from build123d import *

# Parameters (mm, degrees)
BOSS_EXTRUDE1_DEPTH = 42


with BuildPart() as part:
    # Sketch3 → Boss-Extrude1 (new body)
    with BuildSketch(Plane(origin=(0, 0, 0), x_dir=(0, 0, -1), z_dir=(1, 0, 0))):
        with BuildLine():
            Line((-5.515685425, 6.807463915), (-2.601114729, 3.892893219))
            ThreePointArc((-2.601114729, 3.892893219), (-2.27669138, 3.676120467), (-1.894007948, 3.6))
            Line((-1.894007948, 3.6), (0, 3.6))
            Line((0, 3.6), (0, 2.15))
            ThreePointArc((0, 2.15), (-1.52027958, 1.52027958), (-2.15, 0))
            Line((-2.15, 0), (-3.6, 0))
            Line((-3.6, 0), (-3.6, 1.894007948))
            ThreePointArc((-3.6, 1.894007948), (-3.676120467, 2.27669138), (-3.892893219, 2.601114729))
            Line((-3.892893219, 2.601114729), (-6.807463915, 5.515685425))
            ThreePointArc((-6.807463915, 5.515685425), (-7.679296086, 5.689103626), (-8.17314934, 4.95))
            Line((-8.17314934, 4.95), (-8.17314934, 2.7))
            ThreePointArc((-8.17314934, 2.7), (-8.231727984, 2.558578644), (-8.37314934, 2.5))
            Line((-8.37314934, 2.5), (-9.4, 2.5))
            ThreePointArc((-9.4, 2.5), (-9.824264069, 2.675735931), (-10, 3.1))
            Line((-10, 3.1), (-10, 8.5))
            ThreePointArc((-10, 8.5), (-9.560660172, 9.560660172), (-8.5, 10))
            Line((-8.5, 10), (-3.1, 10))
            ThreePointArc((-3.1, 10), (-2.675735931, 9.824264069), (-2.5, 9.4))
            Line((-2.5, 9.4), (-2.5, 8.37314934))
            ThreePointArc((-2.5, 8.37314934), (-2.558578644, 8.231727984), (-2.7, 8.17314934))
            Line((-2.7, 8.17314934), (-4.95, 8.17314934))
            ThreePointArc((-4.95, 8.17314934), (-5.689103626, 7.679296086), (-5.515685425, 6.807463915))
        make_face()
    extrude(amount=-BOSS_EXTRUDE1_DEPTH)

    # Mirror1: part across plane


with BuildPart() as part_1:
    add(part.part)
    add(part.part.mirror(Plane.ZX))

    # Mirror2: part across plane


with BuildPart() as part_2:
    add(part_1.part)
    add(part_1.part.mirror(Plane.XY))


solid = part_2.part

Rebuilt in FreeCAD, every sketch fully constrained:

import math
import FreeCAD as App
import Part
import Sketcher

V = App.Vector

doc = App.newDocument("Part")
body = doc.addObject("PartDesign::Body", "Body")

# Sketch on YZ plane
sketch1 = body.newObject("Sketcher::SketchObject", "Sketch")
sketch1.AttachmentSupport = (doc.getObject("YZ_Plane"), [""])
sketch1.MapMode = "FlatFace"
sketch1.addGeometry([
    Part.LineSegment(V(3.89, 2.6, 0), V(6.81, 5.52, 0)),  # 0
    Part.ArcOfCircle(Part.Circle(V(7.37, 4.95, 0), V(0, 0, 1), 0.8), math.radians(0), math.radians(135)),  # 1
    Part.LineSegment(V(8.17, 4.95, 0), V(8.17, 2.7, 0)),  # 2
    Part.ArcOfCircle(Part.Circle(V(8.37, 2.7, 0), V(0, 0, 1), 0.2), math.radians(-180), math.radians(-90)),  # 3
    Part.LineSegment(V(8.37, 2.5, 0), V(9.4, 2.5, 0)),  # 4
    Part.ArcOfCircle(Part.Circle(V(9.4, 3.1, 0), V(0, 0, 1), 0.6), math.radians(-90), math.radians(0)),  # 5
    Part.LineSegment(V(10, 3.1, 0), V(10, 8.5, 0)),  # 6
    Part.ArcOfCircle(Part.Circle(V(8.5, 8.5, 0), V(0, 0, 1), 1.5), math.radians(0), math.radians(90)),  # 7
    Part.LineSegment(V(8.5, 10, 0), V(3.1, 10, 0)),  # 8
    Part.ArcOfCircle(Part.Circle(V(3.1, 9.4, 0), V(0, 0, 1), 0.6), math.radians(90), math.radians(180)),  # 9
    Part.LineSegment(V(2.5, 9.4, 0), V(2.5, 8.37, 0)),  # 10
    Part.ArcOfCircle(Part.Circle(V(2.7, 8.37, 0), V(0, 0, 1), 0.2), math.radians(-180), math.radians(-90)),  # 11
    Part.LineSegment(V(2.7, 8.17, 0), V(4.95, 8.17, 0)),  # 12
    Part.ArcOfCircle(Part.Circle(V(4.95, 7.37, 0), V(0, 0, 1), 0.8), math.radians(-45), math.radians(90)),  # 13
    Part.LineSegment(V(5.52, 6.81, 0), V(2.6, 3.89, 0)),  # 14
    Part.ArcOfCircle(Part.Circle(V(1.89, 4.6, 0), V(0, 0, 1), 1), math.radians(-90), math.radians(-45)),  # 15
    Part.LineSegment(V(1.89, 3.6, 0), V(0, 3.6, 0)),  # 16
    Part.LineSegment(V(0, 3.6, 0), V(0, 2.15, 0)),  # 17
    Part.ArcOfCircle(Part.Circle(V(0, 0, 0), V(0, 0, 1), 2.15), math.radians(0), math.radians(90)),  # 18
    Part.LineSegment(V(2.15, 0, 0), V(3.6, 0, 0)),  # 19
    Part.LineSegment(V(3.6, 0, 0), V(3.6, 1.89, 0)),  # 20
    Part.ArcOfCircle(Part.Circle(V(4.6, 1.89, 0), V(0, 0, 1), 1), math.radians(135), math.radians(180)),  # 21
], False)
sketch1.addConstraint([
    Sketcher.Constraint("Tangent", 0, 2, 1, 2),
    Sketcher.Constraint("Tangent", 1, 1, 2, 1),
    Sketcher.Constraint("Tangent", 2, 2, 3, 1),
    Sketcher.Constraint("Tangent", 3, 2, 4, 1),
    Sketcher.Constraint("Tangent", 4, 2, 5, 1),
    Sketcher.Constraint("Tangent", 5, 2, 6, 1),
    Sketcher.Constraint("Tangent", 6, 2, 7, 1),
    Sketcher.Constraint("Tangent", 7, 2, 8, 1),
    Sketcher.Constraint("Tangent", 8, 2, 9, 1),
    Sketcher.Constraint("Tangent", 9, 2, 10, 1),
    Sketcher.Constraint("Tangent", 10, 2, 11, 1),
    Sketcher.Constraint("Tangent", 11, 2, 12, 1),
    Sketcher.Constraint("Tangent", 12, 2, 13, 2),
    Sketcher.Constraint("Tangent", 13, 1, 14, 1),
    Sketcher.Constraint("Tangent", 14, 2, 15, 2),
    Sketcher.Constraint("Tangent", 15, 1, 16, 1),
    Sketcher.Constraint("Coincident", 16, 2, 17, 1),
    Sketcher.Constraint("Coincident", 17, 2, 18, 2),
    Sketcher.Constraint("Coincident", 18, 1, 19, 1),
    Sketcher.Constraint("Coincident", 19, 2, 20, 1),
    Sketcher.Constraint("Tangent", 20, 2, 21, 2),
    Sketcher.Constraint("Tangent", 21, 1, 0, 1),
    Sketcher.Constraint("Vertical", 2),
    Sketcher.Constraint("Horizontal", 4),
    Sketcher.Constraint("Vertical", 6),
    Sketcher.Constraint("Horizontal", 8),
    Sketcher.Constraint("Vertical", 10),
    Sketcher.Constraint("Horizontal", 12),
    Sketcher.Constraint("Horizontal", 16),
    Sketcher.Constraint("Vertical", 17),
    Sketcher.Constraint("Horizontal", 19),
    Sketcher.Constraint("Vertical", 20),
    Sketcher.Constraint("Coincident", 18, 3, -1, 1),
    Sketcher.Constraint("Equal", 5, 9),
    Sketcher.Constraint("Equal", 3, 11),
    Sketcher.Constraint("Equal", 1, 13),
    Sketcher.Constraint("Equal", 15, 21),
    Sketcher.Constraint("PointOnObject", 16, 2, -2),
    Sketcher.Constraint("PointOnObject", 18, 1, -1),
    Sketcher.Constraint("Parallel", 0, 14),
    Sketcher.Constraint("Equal", 12, 2),
    Sketcher.Constraint("Equal", 8, 6),
    Sketcher.Constraint("Equal", 4, 10),
    Sketcher.Constraint("Equal", 19, 17),
    Sketcher.Constraint("Equal", 16, 20),
    Sketcher.Constraint("Equal", 0, 14),
    Sketcher.Constraint("Radius", 15, 1.0),
    Sketcher.Constraint("Radius", 1, 0.8),
    Sketcher.Constraint("Radius", 3, 0.2),
    Sketcher.Constraint("Radius", 5, 0.6),
    Sketcher.Constraint("Radius", 7, 1.5),
    Sketcher.Constraint("Radius", 18, 2.15),
    Sketcher.Constraint("DistanceX", 8, 2, 8, 1, 5.4),
    Sketcher.Constraint("DistanceX", -1, 1, 5, 2, 10.0),
    Sketcher.Constraint("DistanceX", 12, 1, 12, 2, 2.25),
    Sketcher.Constraint("DistanceX", 19, 1, 19, 2, 1.45),
    Sketcher.Constraint("DistanceX", 4, 1, 4, 2, 1.026851),
])
pad1 = body.newObject("PartDesign::Pad", "Pad")
pad1.Profile = sketch1
pad1.Length = 42
pad1.Reversed = True
body2 = doc.addObject("PartDesign::Body", "Body001")
doc.recompute()

body2.BaseFeature = body
doc.recompute()

mirroring = doc.addObject("Part::Mirroring", "Mirroring")
mirroring.Source = body
mirroring.Base = V(0, 0, 0)
mirroring.Normal = V(0, 1, 0)
body3 = doc.addObject("PartDesign::Body", "Body002")
body3.BaseFeature = mirroring
boolean = body2.newObject("PartDesign::Boolean", "Boolean")
boolean.Type = "Fuse"
boolean.addObjects([body3])
doc.recompute()
body4 = doc.addObject("PartDesign::Body", "Body003")
doc.recompute()

body4.BaseFeature = body2
doc.recompute()

mirroring2 = doc.addObject("Part::Mirroring", "Mirroring001")
mirroring2.Source = body2
mirroring2.Base = V(0, 0, 0)
mirroring2.Normal = V(0, 0, 1)
body5 = doc.addObject("PartDesign::Body", "Body004")
body5.BaseFeature = mirroring2
boolean2 = body4.newObject("PartDesign::Boolean", "Boolean001")
boolean2.Type = "Fuse"
boolean2.addObjects([body5])
doc.recompute()
mirroring.Visibility = False
mirroring2.Visibility = False

doc.recompute()
